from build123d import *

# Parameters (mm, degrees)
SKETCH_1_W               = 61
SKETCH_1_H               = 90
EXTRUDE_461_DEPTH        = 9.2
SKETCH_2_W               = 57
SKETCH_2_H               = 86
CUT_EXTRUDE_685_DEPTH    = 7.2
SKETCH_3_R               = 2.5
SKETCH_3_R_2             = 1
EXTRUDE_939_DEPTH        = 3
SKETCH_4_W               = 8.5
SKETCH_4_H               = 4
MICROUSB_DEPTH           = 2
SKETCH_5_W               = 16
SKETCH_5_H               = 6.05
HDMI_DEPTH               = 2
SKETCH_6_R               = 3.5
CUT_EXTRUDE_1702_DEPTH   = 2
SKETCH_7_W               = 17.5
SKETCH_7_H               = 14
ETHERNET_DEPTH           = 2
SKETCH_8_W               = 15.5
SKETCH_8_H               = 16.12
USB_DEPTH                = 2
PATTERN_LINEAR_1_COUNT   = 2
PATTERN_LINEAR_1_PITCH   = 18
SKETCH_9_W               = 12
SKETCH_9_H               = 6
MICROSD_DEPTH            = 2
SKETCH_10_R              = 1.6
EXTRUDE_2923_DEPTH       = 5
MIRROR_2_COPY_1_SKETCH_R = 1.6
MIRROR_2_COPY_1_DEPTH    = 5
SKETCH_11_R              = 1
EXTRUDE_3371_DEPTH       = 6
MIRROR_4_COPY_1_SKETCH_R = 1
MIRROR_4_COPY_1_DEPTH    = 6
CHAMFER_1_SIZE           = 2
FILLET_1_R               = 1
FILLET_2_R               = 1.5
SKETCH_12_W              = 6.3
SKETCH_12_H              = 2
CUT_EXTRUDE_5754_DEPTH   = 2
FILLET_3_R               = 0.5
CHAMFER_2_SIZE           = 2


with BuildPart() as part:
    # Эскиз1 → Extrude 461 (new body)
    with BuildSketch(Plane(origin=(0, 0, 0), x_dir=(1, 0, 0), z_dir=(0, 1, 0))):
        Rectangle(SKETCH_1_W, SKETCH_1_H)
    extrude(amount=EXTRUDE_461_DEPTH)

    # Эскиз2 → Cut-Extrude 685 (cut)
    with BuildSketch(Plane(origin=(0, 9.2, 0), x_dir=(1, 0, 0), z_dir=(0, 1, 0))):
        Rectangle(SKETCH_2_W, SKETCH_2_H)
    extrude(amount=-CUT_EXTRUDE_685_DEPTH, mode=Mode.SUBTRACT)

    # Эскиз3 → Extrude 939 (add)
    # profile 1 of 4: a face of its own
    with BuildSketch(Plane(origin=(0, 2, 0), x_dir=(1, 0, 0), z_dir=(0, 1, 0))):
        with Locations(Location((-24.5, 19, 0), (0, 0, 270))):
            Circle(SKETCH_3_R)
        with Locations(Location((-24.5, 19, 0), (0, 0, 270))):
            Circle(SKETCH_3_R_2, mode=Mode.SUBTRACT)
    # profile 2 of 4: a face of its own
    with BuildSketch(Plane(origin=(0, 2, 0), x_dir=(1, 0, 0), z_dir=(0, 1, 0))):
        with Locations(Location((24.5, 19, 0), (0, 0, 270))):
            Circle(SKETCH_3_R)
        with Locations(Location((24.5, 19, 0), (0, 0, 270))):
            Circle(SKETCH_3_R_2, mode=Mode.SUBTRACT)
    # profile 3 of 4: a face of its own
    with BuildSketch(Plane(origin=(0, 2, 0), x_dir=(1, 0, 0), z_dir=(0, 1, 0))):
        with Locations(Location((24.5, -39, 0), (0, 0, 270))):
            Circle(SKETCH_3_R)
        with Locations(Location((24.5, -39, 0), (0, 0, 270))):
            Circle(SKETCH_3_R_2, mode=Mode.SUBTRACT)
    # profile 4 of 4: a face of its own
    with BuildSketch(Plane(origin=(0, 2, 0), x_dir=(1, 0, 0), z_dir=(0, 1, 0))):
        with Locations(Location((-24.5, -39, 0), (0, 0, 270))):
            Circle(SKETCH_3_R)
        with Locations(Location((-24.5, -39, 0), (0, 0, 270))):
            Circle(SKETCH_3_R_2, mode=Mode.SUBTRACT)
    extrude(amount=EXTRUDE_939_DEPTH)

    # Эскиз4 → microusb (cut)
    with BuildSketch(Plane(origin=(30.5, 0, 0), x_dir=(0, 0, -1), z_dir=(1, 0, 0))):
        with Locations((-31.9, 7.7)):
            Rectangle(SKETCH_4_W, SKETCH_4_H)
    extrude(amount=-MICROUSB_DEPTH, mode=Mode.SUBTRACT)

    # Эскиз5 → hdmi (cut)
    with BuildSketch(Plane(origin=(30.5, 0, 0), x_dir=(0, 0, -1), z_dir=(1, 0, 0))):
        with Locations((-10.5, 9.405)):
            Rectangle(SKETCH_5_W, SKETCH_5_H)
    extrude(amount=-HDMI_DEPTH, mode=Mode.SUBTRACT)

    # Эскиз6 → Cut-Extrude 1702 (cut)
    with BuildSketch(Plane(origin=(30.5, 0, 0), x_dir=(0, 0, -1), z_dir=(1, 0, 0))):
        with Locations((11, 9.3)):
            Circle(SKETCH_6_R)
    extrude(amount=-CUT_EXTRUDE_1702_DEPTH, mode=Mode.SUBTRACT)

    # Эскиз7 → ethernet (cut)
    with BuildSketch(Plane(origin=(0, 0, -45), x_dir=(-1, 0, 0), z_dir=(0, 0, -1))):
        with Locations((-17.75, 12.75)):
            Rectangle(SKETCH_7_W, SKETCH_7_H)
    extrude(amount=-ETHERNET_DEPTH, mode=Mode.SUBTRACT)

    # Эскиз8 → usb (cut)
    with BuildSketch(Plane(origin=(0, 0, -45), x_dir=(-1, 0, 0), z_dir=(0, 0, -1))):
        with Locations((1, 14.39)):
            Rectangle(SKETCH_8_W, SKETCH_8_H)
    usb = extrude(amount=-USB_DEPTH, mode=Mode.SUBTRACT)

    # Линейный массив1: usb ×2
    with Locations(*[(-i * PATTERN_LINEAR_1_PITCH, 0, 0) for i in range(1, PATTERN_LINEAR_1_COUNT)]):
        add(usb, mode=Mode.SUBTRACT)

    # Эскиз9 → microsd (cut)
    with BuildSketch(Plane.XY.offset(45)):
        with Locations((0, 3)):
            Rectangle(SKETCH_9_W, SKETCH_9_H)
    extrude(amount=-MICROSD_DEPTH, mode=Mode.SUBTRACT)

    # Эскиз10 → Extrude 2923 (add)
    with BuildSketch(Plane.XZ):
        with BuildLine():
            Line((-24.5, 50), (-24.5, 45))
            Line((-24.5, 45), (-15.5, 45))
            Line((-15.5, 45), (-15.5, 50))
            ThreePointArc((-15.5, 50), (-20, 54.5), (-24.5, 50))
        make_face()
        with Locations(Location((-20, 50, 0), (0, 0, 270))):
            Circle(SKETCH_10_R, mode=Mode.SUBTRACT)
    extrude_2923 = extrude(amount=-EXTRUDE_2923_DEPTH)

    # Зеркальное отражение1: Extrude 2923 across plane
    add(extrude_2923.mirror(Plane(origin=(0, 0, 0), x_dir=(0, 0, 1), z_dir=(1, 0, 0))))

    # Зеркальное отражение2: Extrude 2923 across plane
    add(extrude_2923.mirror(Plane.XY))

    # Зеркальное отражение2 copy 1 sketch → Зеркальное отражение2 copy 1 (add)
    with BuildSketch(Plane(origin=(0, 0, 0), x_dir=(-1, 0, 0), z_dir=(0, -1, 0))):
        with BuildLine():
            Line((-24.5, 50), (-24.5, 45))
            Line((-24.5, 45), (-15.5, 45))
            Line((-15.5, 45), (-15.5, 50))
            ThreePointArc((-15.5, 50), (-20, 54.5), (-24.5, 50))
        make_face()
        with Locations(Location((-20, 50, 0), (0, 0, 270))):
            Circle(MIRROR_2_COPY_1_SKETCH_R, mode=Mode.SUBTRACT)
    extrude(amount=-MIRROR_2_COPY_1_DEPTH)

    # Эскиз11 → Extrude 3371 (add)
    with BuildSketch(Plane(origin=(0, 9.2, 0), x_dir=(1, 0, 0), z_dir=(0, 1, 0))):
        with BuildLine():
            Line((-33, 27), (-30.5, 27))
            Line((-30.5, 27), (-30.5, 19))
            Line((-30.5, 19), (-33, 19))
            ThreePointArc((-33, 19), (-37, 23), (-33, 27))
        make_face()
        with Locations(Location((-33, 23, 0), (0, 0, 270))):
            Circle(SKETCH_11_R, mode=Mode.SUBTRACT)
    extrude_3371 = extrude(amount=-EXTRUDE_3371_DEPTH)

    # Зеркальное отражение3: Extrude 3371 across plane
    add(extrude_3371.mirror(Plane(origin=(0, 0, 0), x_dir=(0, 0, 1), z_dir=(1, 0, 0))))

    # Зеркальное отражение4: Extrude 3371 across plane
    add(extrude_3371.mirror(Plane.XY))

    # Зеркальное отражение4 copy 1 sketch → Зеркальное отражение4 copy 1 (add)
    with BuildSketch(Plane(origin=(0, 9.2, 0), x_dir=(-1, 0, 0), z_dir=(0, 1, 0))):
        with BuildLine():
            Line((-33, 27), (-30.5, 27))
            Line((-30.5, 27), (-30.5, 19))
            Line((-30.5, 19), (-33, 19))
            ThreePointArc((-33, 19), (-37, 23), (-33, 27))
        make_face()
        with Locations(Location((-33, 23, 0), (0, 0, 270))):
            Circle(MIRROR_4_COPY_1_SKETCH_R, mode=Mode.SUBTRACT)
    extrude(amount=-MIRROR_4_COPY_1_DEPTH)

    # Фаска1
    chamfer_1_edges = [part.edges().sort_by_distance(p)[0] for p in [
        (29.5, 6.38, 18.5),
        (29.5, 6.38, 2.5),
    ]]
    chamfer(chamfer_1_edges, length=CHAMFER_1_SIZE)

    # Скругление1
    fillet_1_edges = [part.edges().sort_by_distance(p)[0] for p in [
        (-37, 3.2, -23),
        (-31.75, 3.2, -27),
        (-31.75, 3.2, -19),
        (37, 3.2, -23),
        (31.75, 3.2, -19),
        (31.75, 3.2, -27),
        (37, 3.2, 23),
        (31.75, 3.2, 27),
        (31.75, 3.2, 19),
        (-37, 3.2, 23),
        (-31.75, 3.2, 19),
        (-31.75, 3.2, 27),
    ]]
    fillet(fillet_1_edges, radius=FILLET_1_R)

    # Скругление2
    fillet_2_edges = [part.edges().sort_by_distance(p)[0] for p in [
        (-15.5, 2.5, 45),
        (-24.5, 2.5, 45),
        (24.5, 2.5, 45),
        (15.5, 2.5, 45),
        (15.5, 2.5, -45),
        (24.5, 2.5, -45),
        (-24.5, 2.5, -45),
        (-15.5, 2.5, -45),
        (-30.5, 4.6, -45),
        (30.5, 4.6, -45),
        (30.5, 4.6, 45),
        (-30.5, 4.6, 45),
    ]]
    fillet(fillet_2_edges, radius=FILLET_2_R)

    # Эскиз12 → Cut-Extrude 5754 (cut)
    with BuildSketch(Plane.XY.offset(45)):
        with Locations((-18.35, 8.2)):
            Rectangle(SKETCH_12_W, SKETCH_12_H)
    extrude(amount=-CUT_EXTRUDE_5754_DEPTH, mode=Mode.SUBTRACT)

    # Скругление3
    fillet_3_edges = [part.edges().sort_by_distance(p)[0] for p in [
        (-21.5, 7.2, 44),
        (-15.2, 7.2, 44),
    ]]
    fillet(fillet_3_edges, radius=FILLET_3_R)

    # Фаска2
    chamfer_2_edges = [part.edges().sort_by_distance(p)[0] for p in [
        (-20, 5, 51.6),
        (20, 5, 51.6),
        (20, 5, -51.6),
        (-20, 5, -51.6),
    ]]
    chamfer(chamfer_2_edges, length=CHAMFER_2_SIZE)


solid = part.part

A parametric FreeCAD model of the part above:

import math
import FreeCAD as App
import Part
import Sketcher

V = App.Vector
Q = App.Units.Quantity


def edges_at(feature, points):
    """Names of the edges that pass closest to the given points."""
    edges = feature.Shape.Edges
    near = lambda p: min(range(len(edges)), key=lambda i: edges[i].distToShape(Part.Vertex(*p))[0])
    return sorted({f"Edge{near(p) + 1}" for p in points})

doc = App.newDocument("Part")
body = doc.addObject("PartDesign::Body", "Body")

# Sketch on XZ plane
sketch1 = body.newObject("Sketcher::SketchObject", "Sketch")
sketch1.AttachmentSupport = (doc.getObject("XZ_Plane"), [""])
sketch1.MapMode = "FlatFace"
sketch1.addGeometry(Part.LineSegment(V(-30.5, -45, 0), V(-30.5, 45, 0)), False)
sketch1.addGeometry(Part.LineSegment(V(-30.5, 45, 0), V(30.5, 45, 0)), False)
sketch1.addGeometry(Part.LineSegment(V(30.5, 45, 0), V(30.5, -45, 0)), False)
sketch1.addGeometry(Part.LineSegment(V(30.5, -45, 0), V(-30.5, -45, 0)), False)
sketch1.addConstraint(Sketcher.Constraint("Coincident", 0, 2, 1, 1))
sketch1.addConstraint(Sketcher.Constraint("Coincident", 1, 2, 2, 1))
sketch1.addConstraint(Sketcher.Constraint("Coincident", 2, 2, 3, 1))
sketch1.addConstraint(Sketcher.Constraint("Coincident", 3, 2, 0, 1))
sketch1.addConstraint(Sketcher.Constraint("Vertical", 0))
sketch1.addConstraint(Sketcher.Constraint("Horizontal", 1))
sketch1.addConstraint(Sketcher.Constraint("Vertical", 2))
sketch1.addConstraint(Sketcher.Constraint("Horizontal", 3))
sketch1.addConstraint(Sketcher.Constraint("Symmetric", 0, 2, 2, 2, -1, 1))
sketch1.addConstraint(Sketcher.Constraint("DistanceX", 1, 1, 1, 2, Q("61 mm")))
sketch1.addConstraint(Sketcher.Constraint("DistanceY", 0, 1, 0, 2, Q("90 mm")))
pad1 = body.newObject("PartDesign::Pad", "Pad")
pad1.Profile = sketch1
pad1.Length = 9.2
pad1.Reversed = True

# Sketch on XZ plane
sketch2 = body.newObject("Sketcher::SketchObject", "Sketch001")
sketch2.AttachmentSupport = (doc.getObject("XZ_Plane"), [""])
sketch2.MapMode = "FlatFace"
sketch2.AttachmentOffset = App.Placement(V(0, 0, -9.2), App.Rotation())
sketch2.addGeometry(Part.LineSegment(V(-28.5, -43, 0), V(-28.5, 43, 0)), False)
sketch2.addGeometry(Part.LineSegment(V(-28.5, 43, 0), V(28.5, 43, 0)), False)
sketch2.addGeometry(Part.LineSegment(V(28.5, 43, 0), V(28.5, -43, 0)), False)
sketch2.addGeometry(Part.LineSegment(V(28.5, -43, 0), V(-28.5, -43, 0)), False)
sketch2.addConstraint(Sketcher.Constraint("Coincident", 0, 2, 1, 1))
sketch2.addConstraint(Sketcher.Constraint("Coincident", 1, 2, 2, 1))
sketch2.addConstraint(Sketcher.Constraint("Coincident", 2, 2, 3, 1))
sketch2.addConstraint(Sketcher.Constraint("Coincident", 3, 2, 0, 1))
sketch2.addConstraint(Sketcher.Constraint("Vertical", 0))
sketch2.addConstraint(Sketcher.Constraint("Horizontal", 1))
sketch2.addConstraint(Sketcher.Constraint("Vertical", 2))
sketch2.addConstraint(Sketcher.Constraint("Horizontal", 3))
sketch2.addConstraint(Sketcher.Constraint("Symmetric", 0, 2, 2, 2, -1, 1))
sketch2.addConstraint(Sketcher.Constraint("DistanceX", 1, 1, 1, 2, Q("57 mm")))
sketch2.addConstraint(Sketcher.Constraint("DistanceY", 0, 1, 0, 2, Q("86 mm")))
pocket1 = body.newObject("PartDesign::Pocket", "Pocket")
pocket1.Profile = sketch2
pocket1.Length = 7.2
pocket1.Reversed = True

# Sketch on XZ plane
sketch3 = body.newObject("Sketcher::SketchObject", "Sketch002")
sketch3.AttachmentSupport = (doc.getObject("XZ_Plane"), [""])
sketch3.MapMode = "FlatFace"
sketch3.AttachmentOffset = App.Placement(V(0, 0, -2), App.Rotation())
sketch3.addGeometry(Part.Circle(V(-24.5, -19, 0), V(0, 0, 1), 2.5), False)
sketch3.addGeometry(Part.Circle(V(-24.5, -19, 0), V(0, 0, 1), 1), False)
sketch3.addGeometry(Part.Circle(V(24.5, -19, 0), V(0, 0, 1), 2.5), False)
sketch3.addGeometry(Part.Circle(V(24.5, -19, 0), V(0, 0, 1), 1), False)
sketch3.addGeometry(Part.Circle(V(24.5, 39, 0), V(0, 0, 1), 2.5), False)
sketch3.addGeometry(Part.Circle(V(24.5, 39, 0), V(0, 0, 1), 1), False)
sketch3.addGeometry(Part.Circle(V(-24.5, 39, 0), V(0, 0, 1), 2.5), False)
sketch3.addGeometry(Part.Circle(V(-24.5, 39, 0), V(0, 0, 1), 1), False)
sketch3.addConstraint(Sketcher.Constraint("Coincident", 1, 3, 0, 3))
sketch3.addConstraint(Sketcher.Constraint("Coincident", 3, 3, 2, 3))
sketch3.addConstraint(Sketcher.Constraint("Coincident", 5, 3, 4, 3))
sketch3.addConstraint(Sketcher.Constraint("Coincident", 7, 3, 6, 3))
sketch3.addConstraint(Sketcher.Constraint("Equal", 0, 2))
sketch3.addConstraint(Sketcher.Constraint("Equal", 1, 3))
sketch3.addConstraint(Sketcher.Constraint("Equal", 2, 4))
sketch3.addConstraint(Sketcher.Constraint("Equal", 3, 5))
sketch3.addConstraint(Sketcher.Constraint("Equal", 4, 6))
sketch3.addConstraint(Sketcher.Constraint("Equal", 5, 7))
sketch3.addConstraint(Sketcher.Constraint("Symmetric", 0, 3, 2, 3, -2))
sketch3.addConstraint(Sketcher.Constraint("Symmetric", 4, 3, 6, 3, -2))
sketch3.addConstraint(Sketcher.Constraint("Vertical", 3, 3, 4, 3))
sketch3.addConstraint(Sketcher.Constraint("Diameter", 0, Q("5 mm")))
sketch3.addConstraint(Sketcher.Constraint("Diameter", 1, Q("2 mm")))
sketch3.addConstraint(Sketcher.Constraint("DistanceY", 0, 3, -1, 1, Q("19 mm")))
sketch3.addConstraint(Sketcher.Constraint("DistanceY", -1, 1, 4, 3, Q("39 mm")))
sketch3.addConstraint(Sketcher.Constraint("DistanceX", 0, 3, 2, 3, Q("49 mm")))
pad2 = body.newObject("PartDesign::Pad", "Pad001")
pad2.Profile = sketch3
pad2.Length = 3
pad2.Reversed = True

# Sketch on YZ plane
sketch4 = body.newObject("Sketcher::SketchObject", "Sketch003")
sketch4.AttachmentSupport = (doc.getObject("YZ_Plane"), [""])
sketch4.MapMode = "FlatFace"
sketch4.AttachmentOffset = App.Placement(V(0, 0, 30.5), App.Rotation())
sketch4.addGeometry(Part.LineSegment(V(9.7, 36.15, 0), V(5.7, 36.15, 0)), False)
sketch4.addGeometry(Part.LineSegment(V(5.7, 36.15, 0), V(5.7, 27.65, 0)), False)
sketch4.addGeometry(Part.LineSegment(V(5.7, 27.65, 0), V(9.7, 27.65, 0)), False)
sketch4.addGeometry(Part.LineSegment(V(9.7, 27.65, 0), V(9.7, 36.15, 0)), False)
sketch4.addConstraint(Sketcher.Constraint("Coincident", 0, 2, 1, 1))
sketch4.addConstraint(Sketcher.Constraint("Coincident", 1, 2, 2, 1))
sketch4.addConstraint(Sketcher.Constraint("Coincident", 2, 2, 3, 1))
sketch4.addConstraint(Sketcher.Constraint("Coincident", 3, 2, 0, 1))
sketch4.addConstraint(Sketcher.Constraint("Horizontal", 0))
sketch4.addConstraint(Sketcher.Constraint("Vertical", 1))
sketch4.addConstraint(Sketcher.Constraint("Horizontal", 2))
sketch4.addConstraint(Sketcher.Constraint("Vertical", 3))
sketch4.addConstraint(Sketcher.Constraint("DistanceX", 0, 2, 0, 1, Q("4 mm")))
sketch4.addConstraint(Sketcher.Constraint("DistanceY", 1, 2, 1, 1, Q("8.5 mm")))
sketch4.addConstraint(Sketcher.Constraint("DistanceX", -1, 1, 0, 2, Q("5.7 mm")))
sketch4.addConstraint(Sketcher.Constraint("DistanceY", -1, 1, 0, 2, Q("36.15 mm")))
pocket2 = body.newObject("PartDesign::Pocket", "Pocket001")
pocket2.Profile = sketch4
pocket2.Length = 2

# Sketch on YZ plane
sketch5 = body.newObject("Sketcher::SketchObject", "Sketch004")
sketch5.AttachmentSupport = (doc.getObject("YZ_Plane"), [""])
sketch5.MapMode = "FlatFace"
sketch5.AttachmentOffset = App.Placement(V(0, 0, 30.5), App.Rotation())
sketch5.addGeometry(Part.LineSegment(V(12.43, 18.5, 0), V(6.38, 18.5, 0)), False)
sketch5.addGeometry(Part.LineSegment(V(6.38, 18.5, 0), V(6.38, 2.5, 0)), False)
sketch5.addGeometry(Part.LineSegment(V(6.38, 2.5, 0), V(12.43, 2.5, 0)), False)
sketch5.addGeometry(Part.LineSegment(V(12.43, 2.5, 0), V(12.43, 18.5, 0)), False)
sketch5.addConstraint(Sketcher.Constraint("Coincident", 0, 2, 1, 1))
sketch5.addConstraint(Sketcher.Constraint("Coincident", 1, 2, 2, 1))
sketch5.addConstraint(Sketcher.Constraint("Coincident", 2, 2, 3, 1))
sketch5.addConstraint(Sketcher.Constraint("Coincident", 3, 2, 0, 1))
sketch5.addConstraint(Sketcher.Constraint("Horizontal", 0))
sketch5.addConstraint(Sketcher.Constraint("Vertical", 1))
sketch5.addConstraint(Sketcher.Constraint("Horizontal", 2))
sketch5.addConstraint(Sketcher.Constraint("Vertical", 3))
sketch5.addConstraint(Sketcher.Constraint("DistanceY", 1, 2, 1, 1, Q("16 mm")))
sketch5.addConstraint(Sketcher.Constraint("DistanceX", 0, 2, 0, 1, Q("6.05 mm")))
sketch5.addConstraint(Sketcher.Constraint("DistanceY", -1, 1, 0, 2, Q("18.5 mm")))
sketch5.addConstraint(Sketcher.Constraint("DistanceX", -1, 1, 0, 2, Q("6.38 mm")))
pocket3 = body.newObject("PartDesign::Pocket", "Pocket002")
pocket3.Profile = sketch5
pocket3.Length = 2

# Sketch on YZ plane
sketch6 = body.newObject("Sketcher::SketchObject", "Sketch005")
sketch6.AttachmentSupport = (doc.getObject("YZ_Plane"), [""])
sketch6.MapMode = "FlatFace"
sketch6.AttachmentOffset = App.Placement(V(0, 0, 30.5), App.Rotation())
sketch6.addGeometry(Part.Circle(V(9.3, -11, 0), V(0, 0, 1), 3.5), False)
sketch6.addConstraint(Sketcher.Constraint("Diameter", 0, Q("7 mm")))
sketch6.addConstraint(Sketcher.Constraint("DistanceY", 0, 3, -1, 1, Q("11 mm")))
sketch6.addConstraint(Sketcher.Constraint("DistanceX", -1, 1, 0, 3, Q("9.3 mm")))
pocket4 = body.newObject("PartDesign::Pocket", "Pocket003")
pocket4.Profile = sketch6
pocket4.Length = 2

# Sketch on XY plane
sketch7 = body.newObject("Sketcher::SketchObject", "Sketch006")
sketch7.AttachmentSupport = (doc.getObject("XY_Plane"), [""])
sketch7.MapMode = "FlatFace"
sketch7.AttachmentOffset = App.Placement(V(0, 0, -45), App.Rotation())
sketch7.addGeometry(Part.LineSegment(V(26.5, 19.75, 0), V(26.5, 5.75, 0)), False)
sketch7.addGeometry(Part.LineSegment(V(26.5, 5.75, 0), V(9, 5.75, 0)), False)
sketch7.addGeometry(Part.LineSegment(V(9, 5.75, 0), V(9, 19.75, 0)), False)
sketch7.addGeometry(Part.LineSegment(V(9, 19.75, 0), V(26.5, 19.75, 0)), False)
sketch7.addConstraint(Sketcher.Constraint("Coincident", 0, 2, 1, 1))
sketch7.addConstraint(Sketcher.Constraint("Coincident", 1, 2, 2, 1))
sketch7.addConstraint(Sketcher.Constraint("Coincident", 2, 2, 3, 1))
sketch7.addConstraint(Sketcher.Constraint("Coincident", 3, 2, 0, 1))
sketch7.addConstraint(Sketcher.Constraint("Vertical", 0))
sketch7.addConstraint(Sketcher.Constraint("Horizontal", 1))
sketch7.addConstraint(Sketcher.Constraint("Vertical", 2))
sketch7.addConstraint(Sketcher.Constraint("Horizontal", 3))
sketch7.addConstraint(Sketcher.Constraint("DistanceY", 0, 2, 0, 1, Q("14 mm")))
sketch7.addConstraint(Sketcher.Constraint("DistanceX", 1, 2, 1, 1, Q("17.5 mm")))
sketch7.addConstraint(Sketcher.Constraint("DistanceX", -1, 1, 1, 2, Q("9 mm")))
sketch7.addConstraint(Sketcher.Constraint("DistanceY", -1, 1, 0, 2, Q("5.75 mm")))
pocket5 = body.newObject("PartDesign::Pocket", "Pocket004")
pocket5.Profile = sketch7
pocket5.Length = 2
pocket5.Reversed = True

# Sketch on XY plane
sketch8 = body.newObject("Sketcher::SketchObject", "Sketch007")
sketch8.AttachmentSupport = (doc.getObject("XY_Plane"), [""])
sketch8.MapMode = "FlatFace"
sketch8.AttachmentOffset = App.Placement(V(0, 0, -45), App.Rotation())
sketch8.addGeometry(Part.LineSegment(V(6.75, 22.45, 0), V(6.75, 6.33, 0)), False)
sketch8.addGeometry(Part.LineSegment(V(6.75, 6.33, 0), V(-8.75, 6.33, 0)), False)
sketch8.addGeometry(Part.LineSegment(V(-8.75, 6.33, 0), V(-8.75, 22.45, 0)), False)
sketch8.addGeometry(Part.LineSegment(V(-8.75, 22.45, 0), V(6.75, 22.45, 0)), False)
sketch8.addConstraint(Sketcher.Constraint("Coincident", 0, 2, 1, 1))
sketch8.addConstraint(Sketcher.Constraint("Coincident", 1, 2, 2, 1))
sketch8.addConstraint(Sketcher.Constraint("Coincident", 2, 2, 3, 1))
sketch8.addConstraint(Sketcher.Constraint("Coincident", 3, 2, 0, 1))
sketch8.addConstraint(Sketcher.Constraint("Vertical", 0))
sketch8.addConstraint(Sketcher.Constraint("Horizontal", 1))
sketch8.addConstraint(Sketcher.Constraint("Vertical", 2))
sketch8.addConstraint(Sketcher.Constraint("Horizontal", 3))
sketch8.addConstraint(Sketcher.Constraint("DistanceX", 1, 2, 1, 1, Q("15.5 mm")))
sketch8.addConstraint(Sketcher.Constraint("DistanceY", 0, 2, 0, 1, Q("16.12 mm")))
sketch8.addConstraint(Sketcher.Constraint("DistanceX", -1, 1, 0, 2, Q("6.75 mm")))
sketch8.addConstraint(Sketcher.Constraint("DistanceY", -1, 1, 0, 2, Q("6.33 mm")))
pocket6 = body.newObject("PartDesign::Pocket", "Pocket005")
pocket6.Profile = sketch8
pocket6.Length = 2
pocket6.Reversed = True
doc.recompute()

linearpattern = body.newObject("PartDesign::LinearPattern", "LinearPattern")
linearpattern.Originals = [pocket6]
linearpattern.Direction = (doc.getObject("X_Axis"), [""])
linearpattern.Mode = "offset"
linearpattern.Offset = 18
linearpattern.Occurrences = 2
linearpattern.Reversed = True
body.Tip = linearpattern

# Sketch on XY plane
sketch9 = body.newObject("Sketcher::SketchObject", "Sketch008")
sketch9.AttachmentSupport = (doc.getObject("XY_Plane"), [""])
sketch9.MapMode = "FlatFace"
sketch9.AttachmentOffset = App.Placement(V(0, 0, 45), App.Rotation())
sketch9.addGeometry(Part.LineSegment(V(-6, 6, 0), V(-6, 0, 0)), False)
sketch9.addGeometry(Part.LineSegment(V(-6, 0, 0), V(6, 0, 0)), False)
sketch9.addGeometry(Part.LineSegment(V(6, 0, 0), V(6, 6, 0)), False)
sketch9.addGeometry(Part.LineSegment(V(6, 6, 0), V(-6, 6, 0)), False)
sketch9.addConstraint(Sketcher.Constraint("Coincident", 0, 2, 1, 1))
sketch9.addConstraint(Sketcher.Constraint("Coincident", 1, 2, 2, 1))
sketch9.addConstraint(Sketcher.Constraint("Coincident", 2, 2, 3, 1))
sketch9.addConstraint(Sketcher.Constraint("Coincident", 3, 2, 0, 1))
sketch9.addConstraint(Sketcher.Constraint("Vertical", 0))
sketch9.addConstraint(Sketcher.Constraint("Horizontal", 1))
sketch9.addConstraint(Sketcher.Constraint("Vertical", 2))
sketch9.addConstraint(Sketcher.Constraint("Horizontal", 3))
sketch9.addConstraint(Sketcher.Constraint("Symmetric", 0, 2, 1, 2, -1, 1))
sketch9.addConstraint(Sketcher.Constraint("DistanceX", 1, 1, 1, 2, Q("12 mm")))
sketch9.addConstraint(Sketcher.Constraint("DistanceY", 0, 2, 0, 1, Q("6 mm")))
pocket7 = body.newObject("PartDesign::Pocket", "Pocket006")
pocket7.Profile = sketch9
pocket7.Length = 2

# Sketch on XZ plane
sketch10 = body.newObject("Sketcher::SketchObject", "Sketch009")
sketch10.AttachmentSupport = (doc.getObject("XZ_Plane"), [""])
sketch10.MapMode = "FlatFace"
sketch10.addGeometry(Part.LineSegment(V(-24.5, 50, 0), V(-24.5, 45, 0)), False)
sketch10.addGeometry(Part.LineSegment(V(-24.5, 45, 0), V(-15.5, 45, 0)), False)
sketch10.addGeometry(Part.LineSegment(V(-15.5, 45, 0), V(-15.5, 50, 0)), False)
sketch10.addGeometry(Part.ArcOfCircle(Part.Circle(V(-20, 50, 0), V(0, 0, 1), 4.5), math.radians(0), math.radians(180)), False)
sketch10.addGeometry(Part.Circle(V(-20, 50, 0), V(0, 0, 1), 1.6), False)
sketch10.addConstraint(Sketcher.Constraint("Coincident", 0, 2, 1, 1))
sketch10.addConstraint(Sketcher.Constraint("Coincident", 1, 2, 2, 1))
sketch10.addConstraint(Sketcher.Constraint("Tangent", 2, 2, 3, 1))
sketch10.addConstraint(Sketcher.Constraint("Tangent", 3, 2, 0, 1))
sketch10.addConstraint(Sketcher.Constraint("Vertical", 0))
sketch10.addConstraint(Sketcher.Constraint("Horizontal", 1))
sketch10.addConstraint(Sketcher.Constraint("Vertical", 2))
sketch10.addConstraint(Sketcher.Constraint("Coincident", 4, 3, 3, 3))
sketch10.addConstraint(Sketcher.Constraint("Diameter", 4, Q("3.2 mm")))
sketch10.addConstraint(Sketcher.Constraint("Radius", 3, Q("4.5 mm")))
sketch10.addConstraint(Sketcher.Constraint("DistanceY", 0, 2, 0, 1, Q("5 mm")))
sketch10.addConstraint(Sketcher.Constraint("DistanceX", 3, 3, -1, 1, Q("20 mm")))
sketch10.addConstraint(Sketcher.Constraint("DistanceY", -1, 1, 3, 3, Q("50 mm")))
pad3 = body.newObject("PartDesign::Pad", "Pad002")
pad3.Profile = sketch10
pad3.Length = 5
pad3.Reversed = True
doc.recompute()

mirrored = body.newObject("PartDesign::Mirrored", "Mirrored")
mirrored.Originals = [pad3]
mirrored.MirrorPlane = (doc.getObject("YZ_Plane"), [""])
body.Tip = mirrored
doc.recompute()

mirrored2 = body.newObject("PartDesign::Mirrored", "Mirrored001")
mirrored2.Originals = [pad3]
mirrored2.MirrorPlane = (doc.getObject("XY_Plane"), [""])
body.Tip = mirrored2

# Sketch on XZ plane
sketch11 = body.newObject("Sketcher::SketchObject", "Sketch010")
sketch11.AttachmentSupport = (doc.getObject("XZ_Plane"), [""])
sketch11.MapMode = "FlatFace"
sketch11.addGeometry(Part.LineSegment(V(24.5, -50, 0), V(24.5, -45, 0)), False)
sketch11.addGeometry(Part.LineSegment(V(24.5, -45, 0), V(15.5, -45, 0)), False)
sketch11.addGeometry(Part.LineSegment(V(15.5, -45, 0), V(15.5, -50, 0)), False)
sketch11.addGeometry(Part.ArcOfCircle(Part.Circle(V(20, -50, 0), V(0, 0, 1), 4.5), math.radians(180), math.radians(360)), False)
sketch11.addGeometry(Part.Circle(V(20, -50, 0), V(0, 0, 1), 1.6), False)
sketch11.addConstraint(Sketcher.Constraint("Coincident", 0, 2, 1, 1))
sketch11.addConstraint(Sketcher.Constraint("Coincident", 1, 2, 2, 1))
sketch11.addConstraint(Sketcher.Constraint("Tangent", 2, 2, 3, 1))
sketch11.addConstraint(Sketcher.Constraint("Tangent", 3, 2, 0, 1))
sketch11.addConstraint(Sketcher.Constraint("Vertical", 0))
sketch11.addConstraint(Sketcher.Constraint("Horizontal", 1))
sketch11.addConstraint(Sketcher.Constraint("Vertical", 2))
sketch11.addConstraint(Sketcher.Constraint("Coincident", 4, 3, 3, 3))
sketch11.addConstraint(Sketcher.Constraint("Diameter", 4, Q("3.2 mm")))
sketch11.addConstraint(Sketcher.Constraint("Radius", 3, Q("4.5 mm")))
sketch11.addConstraint(Sketcher.Constraint("DistanceY", 0, 1, 0, 2, Q("5 mm")))
sketch11.addConstraint(Sketcher.Constraint("DistanceX", -1, 1, 3, 3, Q("20 mm")))
sketch11.addConstraint(Sketcher.Constraint("DistanceY", 3, 3, -1, 1, Q("50 mm")))
pad4 = body.newObject("PartDesign::Pad", "Pad003")
pad4.Profile = sketch11
pad4.Length = 5
pad4.Reversed = True

# Sketch on XZ plane
sketch12 = body.newObject("Sketcher::SketchObject", "Sketch011")
sketch12.AttachmentSupport = (doc.getObject("XZ_Plane"), [""])
sketch12.MapMode = "FlatFace"
sketch12.AttachmentOffset = App.Placement(V(0, 0, -9.2), App.Rotation())
sketch12.addGeometry(Part.LineSegment(V(-30.5, -27, 0), V(-33, -27, 0)), False)
sketch12.addGeometry(Part.ArcOfCircle(Part.Circle(V(-33, -23, 0), V(0, 0, 1), 4), math.radians(90), math.radians(270)), False)
sketch12.addGeometry(Part.LineSegment(V(-33, -19, 0), V(-30.5, -19, 0)), False)
sketch12.addGeometry(Part.LineSegment(V(-30.5, -19, 0), V(-30.5, -27, 0)), False)
sketch12.addGeometry(Part.Circle(V(-33, -23, 0), V(0, 0, 1), 1), False)
sketch12.addConstraint(Sketcher.Constraint("Tangent", 0, 2, 1, 2))
sketch12.addConstraint(Sketcher.Constraint("Tangent", 1, 1, 2, 1))
sketch12.addConstraint(Sketcher.Constraint("Coincident", 2, 2, 3, 1))
sketch12.addConstraint(Sketcher.Constraint("Coincident", 3, 2, 0, 1))
sketch12.addConstraint(Sketcher.Constraint("Horizontal", 0))
sketch12.addConstraint(Sketcher.Constraint("Horizontal", 2))
sketch12.addConstraint(Sketcher.Constraint("Vertical", 3))
sketch12.addConstraint(Sketcher.Constraint("Coincident", 4, 3, 1, 3))
sketch12.addConstraint(Sketcher.Constraint("Diameter", 4, Q("2 mm")))
sketch12.addConstraint(Sketcher.Constraint("Radius", 1, Q("4 mm")))
sketch12.addConstraint(Sketcher.Constraint("DistanceX", 0, 2, 0, 1, Q("2.5 mm")))
sketch12.addConstraint(Sketcher.Constraint("DistanceX", 1, 3, -1, 1, Q("33 mm")))
sketch12.addConstraint(Sketcher.Constraint("DistanceY", 1, 3, -1, 1, Q("23 mm")))
pad5 = body.newObject("PartDesign::Pad", "Pad004")
pad5.Profile = sketch12
pad5.Length = 6
doc.recompute()

mirrored3 = body.newObject("PartDesign::Mirrored", "Mirrored002")
mirrored3.Originals = [pad5]
mirrored3.MirrorPlane = (doc.getObject("YZ_Plane"), [""])
body.Tip = mirrored3
doc.recompute()

mirrored4 = body.newObject("PartDesign::Mirrored", "Mirrored003")
mirrored4.Originals = [pad5]
mirrored4.MirrorPlane = (doc.getObject("XY_Plane"), [""])
body.Tip = mirrored4

# Sketch on XZ plane
sketch13 = body.newObject("Sketcher::SketchObject", "Sketch012")
sketch13.AttachmentSupport = (doc.getObject("XZ_Plane"), [""])
sketch13.MapMode = "FlatFace"
sketch13.AttachmentOffset = App.Placement(V(0, 0, -9.2), App.Rotation())
sketch13.addGeometry(Part.LineSegment(V(30.5, 27, 0), V(33, 27, 0)), False)
sketch13.addGeometry(Part.ArcOfCircle(Part.Circle(V(33, 23, 0), V(0, 0, 1), 4), math.radians(-90), math.radians(90)), False)
sketch13.addGeometry(Part.LineSegment(V(33, 19, 0), V(30.5, 19, 0)), False)
sketch13.addGeometry(Part.LineSegment(V(30.5, 19, 0), V(30.5, 27, 0)), False)
sketch13.addGeometry(Part.Circle(V(33, 23, 0), V(0, 0, 1), 1), False)
sketch13.addConstraint(Sketcher.Constraint("Tangent", 0, 2, 1, 2))
sketch13.addConstraint(Sketcher.Constraint("Tangent", 1, 1, 2, 1))
sketch13.addConstraint(Sketcher.Constraint("Coincident", 2, 2, 3, 1))
sketch13.addConstraint(Sketcher.Constraint("Coincident", 3, 2, 0, 1))
sketch13.addConstraint(Sketcher.Constraint("Horizontal", 0))
sketch13.addConstraint(Sketcher.Constraint("Horizontal", 2))
sketch13.addConstraint(Sketcher.Constraint("Vertical", 3))
sketch13.addConstraint(Sketcher.Constraint("Coincident", 4, 3, 1, 3))
sketch13.addConstraint(Sketcher.Constraint("Diameter", 4, Q("2 mm")))
sketch13.addConstraint(Sketcher.Constraint("Radius", 1, Q("4 mm")))
sketch13.addConstraint(Sketcher.Constraint("DistanceX", 0, 1, 0, 2, Q("2.5 mm")))
sketch13.addConstraint(Sketcher.Constraint("DistanceX", -1, 1, 1, 3, Q("33 mm")))
sketch13.addConstraint(Sketcher.Constraint("DistanceY", -1, 1, 1, 3, Q("23 mm")))
pad6 = body.newObject("PartDesign::Pad", "Pad005")
pad6.Profile = sketch13
pad6.Length = 6
doc.recompute()

chamfer = body.newObject("PartDesign::Chamfer", "Chamfer")
chamfer.Base = (pad6, edges_at(pad6, [(29.5, 6.38, 18.5), (29.5, 6.38, 2.5)]))
chamfer.Size = 2
doc.recompute()

fillet = body.newObject("PartDesign::Fillet", "Fillet")
fillet.Base = (chamfer, edges_at(chamfer, [
    (-37, 3.2, -23),
    (-31.75, 3.2, -27),
    (-31.75, 3.2, -19),
    (37, 3.2, -23),
    (31.75, 3.2, -19),
    (31.75, 3.2, -27),
    (37, 3.2, 23),
    (31.75, 3.2, 27),
    (31.75, 3.2, 19),
    (-37, 3.2, 23),
    (-31.75, 3.2, 19),
    (-31.75, 3.2, 27),
]))
fillet.Radius = 1
doc.recompute()

fillet2 = body.newObject("PartDesign::Fillet", "Fillet001")
fillet2.Base = (fillet, edges_at(fillet, [
    (-15.5, 2.5, 45),
    (-24.5, 2.5, 45),
    (24.5, 2.5, 45),
    (15.5, 2.5, 45),
    (15.5, 2.5, -45),
    (24.5, 2.5, -45),
    (-24.5, 2.5, -45),
    (-15.5, 2.5, -45),
    (-30.5, 4.6, -45),
    (30.5, 4.6, -45),
    (30.5, 4.6, 45),
    (-30.5, 4.6, 45),
]))
fillet2.Radius = 1.5

# Sketch on XY plane
sketch14 = body.newObject("Sketcher::SketchObject", "Sketch013")
sketch14.AttachmentSupport = (doc.getObject("XY_Plane"), [""])
sketch14.MapMode = "FlatFace"
sketch14.AttachmentOffset = App.Placement(V(0, 0, 45), App.Rotation())
sketch14.addGeometry(Part.LineSegment(V(-21.5, 9.2, 0), V(-21.5, 7.2, 0)), False)
sketch14.addGeometry(Part.LineSegment(V(-21.5, 7.2, 0), V(-15.2, 7.2, 0)), False)
sketch14.addGeometry(Part.LineSegment(V(-15.2, 7.2, 0), V(-15.2, 9.2, 0)), False)
sketch14.addGeometry(Part.LineSegment(V(-15.2, 9.2, 0), V(-21.5, 9.2, 0)), False)
sketch14.addConstraint(Sketcher.Constraint("Coincident", 0, 2, 1, 1))
sketch14.addConstraint(Sketcher.Constraint("Coincident", 1, 2, 2, 1))
sketch14.addConstraint(Sketcher.Constraint("Coincident", 2, 2, 3, 1))
sketch14.addConstraint(Sketcher.Constraint("Coincident", 3, 2, 0, 1))
sketch14.addConstraint(Sketcher.Constraint("Vertical", 0))
sketch14.addConstraint(Sketcher.Constraint("Horizontal", 1))
sketch14.addConstraint(Sketcher.Constraint("Vertical", 2))
sketch14.addConstraint(Sketcher.Constraint("Horizontal", 3))
sketch14.addConstraint(Sketcher.Constraint("DistanceY", 0, 2, 0, 1, Q("2 mm")))
sketch14.addConstraint(Sketcher.Constraint("DistanceX", 1, 1, 1, 2, Q("6.3 mm")))
sketch14.addConstraint(Sketcher.Constraint("DistanceX", 0, 2, -1, 1, Q("21.5 mm")))
sketch14.addConstraint(Sketcher.Constraint("DistanceY", -1, 1, 0, 2, Q("7.2 mm")))
pocket8 = body.newObject("PartDesign::Pocket", "Pocket007")
pocket8.Profile = sketch14
pocket8.Length = 2
doc.recompute()

fillet3 = body.newObject("PartDesign::Fillet", "Fillet002")
fillet3.Base = (pocket8, edges_at(pocket8, [(-21.5, 7.2, 44), (-15.2, 7.2, 44)]))
fillet3.Radius = 0.5
doc.recompute()

chamfer2 = body.newObject("PartDesign::Chamfer", "Chamfer001")
chamfer2.Base = (fillet3, edges_at(fillet3, [
    (-20, 5, 51.6),
    (20, 5, 51.6),
    (20, 5, -51.6),
    (-20, 5, -51.6),
]))
chamfer2.Size = 2

doc.recompute()
